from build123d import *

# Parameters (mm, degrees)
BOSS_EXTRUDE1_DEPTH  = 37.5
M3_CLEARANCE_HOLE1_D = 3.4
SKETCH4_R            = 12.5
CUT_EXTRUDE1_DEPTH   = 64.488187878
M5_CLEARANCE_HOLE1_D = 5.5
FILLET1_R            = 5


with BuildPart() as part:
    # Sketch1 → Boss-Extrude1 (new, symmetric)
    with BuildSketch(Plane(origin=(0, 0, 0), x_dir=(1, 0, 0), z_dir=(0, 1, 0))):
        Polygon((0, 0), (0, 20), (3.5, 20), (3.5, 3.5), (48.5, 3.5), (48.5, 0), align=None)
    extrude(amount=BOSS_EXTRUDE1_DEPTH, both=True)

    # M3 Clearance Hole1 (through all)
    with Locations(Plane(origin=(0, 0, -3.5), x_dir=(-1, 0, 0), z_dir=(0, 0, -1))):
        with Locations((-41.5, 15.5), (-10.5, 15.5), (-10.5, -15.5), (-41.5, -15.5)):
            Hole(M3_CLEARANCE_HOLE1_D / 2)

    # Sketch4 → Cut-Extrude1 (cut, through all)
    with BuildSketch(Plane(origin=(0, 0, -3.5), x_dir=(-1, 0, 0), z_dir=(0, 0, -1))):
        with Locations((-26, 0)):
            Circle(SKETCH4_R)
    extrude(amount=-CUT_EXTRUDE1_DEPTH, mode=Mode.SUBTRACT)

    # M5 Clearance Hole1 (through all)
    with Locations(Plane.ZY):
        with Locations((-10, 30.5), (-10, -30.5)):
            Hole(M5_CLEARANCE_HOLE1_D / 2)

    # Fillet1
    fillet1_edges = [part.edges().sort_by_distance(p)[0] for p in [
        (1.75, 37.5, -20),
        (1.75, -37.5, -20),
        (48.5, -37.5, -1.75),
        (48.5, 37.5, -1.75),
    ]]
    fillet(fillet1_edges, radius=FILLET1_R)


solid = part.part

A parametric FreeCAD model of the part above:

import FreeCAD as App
import Part
import Sketcher
from FreeCAD import Vector


def edges_at(feature, points):
    """Names of the edges that pass closest to the given points."""
    edges = feature.Shape.Edges
    near = lambda p: min(range(len(edges)), key=lambda i: edges[i].distToShape(Part.Vertex(*p))[0])
    return sorted({f"Edge{near(p) + 1}" for p in points})

doc = App.newDocument("Part")
body = doc.addObject("PartDesign::Body", "Body")

sketch1 = body.newObject("Sketcher::SketchObject", "Sketch")
sketch1.AttachmentSupport = (doc.getObject("XZ_Plane"), [""])
sketch1.MapMode = "FlatFace"
sketch1.addGeometry([
    Part.LineSegment(Vector(0, -20, 0), Vector(0, 0, 0)),
    Part.LineSegment(Vector(0, 0, 0), Vector(48.5, 0, 0)),
    Part.LineSegment(Vector(48.5, 0, 0), Vector(48.5, -3.5, 0)),
    Part.LineSegment(Vector(48.5, -3.5, 0), Vector(3.5, -3.5, 0)),
    Part.LineSegment(Vector(3.5, -3.5, 0), Vector(3.5, -20, 0)),
    Part.LineSegment(Vector(3.5, -20, 0), Vector(0, -20, 0)),
], False)
sketch1.addConstraint([
    Sketcher.Constraint("Coincident", 0, 2, 1, 1),
    Sketcher.Constraint("Coincident", 1, 2, 2, 1),
    Sketcher.Constraint("Coincident", 2, 2, 3, 1),
    Sketcher.Constraint("Coincident", 3, 2, 4, 1),
    Sketcher.Constraint("Coincident", 4, 2, 5, 1),
    Sketcher.Constraint("Coincident", 5, 2, 0, 1),
    Sketcher.Constraint("Vertical", 0),
    Sketcher.Constraint("Horizontal", 1),
    Sketcher.Constraint("Vertical", 2),
    Sketcher.Constraint("Horizontal", 3),
    Sketcher.Constraint("Vertical", 4),
    Sketcher.Constraint("Horizontal", 5),
    Sketcher.Constraint("Coincident", 0, 2, -1, 1),
    Sketcher.Constraint("Equal", 5, 2),
    Sketcher.Constraint("DistanceX", 3, 2, 3, 1, 45.0),
    Sketcher.Constraint("DistanceY", 0, 1, 0, 2, 20.0),
    Sketcher.Constraint("DistanceX", 1, 1, 1, 2, 48.5),
])
pad1 = body.newObject("PartDesign::Pad", "Pad")
pad1.Profile = sketch1
pad1.Length = 75
pad1.Midplane = True

sketch2 = body.newObject("Sketcher::SketchObject", "Sketch001")
sketch2.AttachmentSupport = (doc.getObject("XY_Plane"), [""])
sketch2.MapMode = "FlatFace"
sketch2.AttachmentOffset = App.Placement(Vector(0, 0, -3.5), App.Rotation())
sketch2.addGeometry([
    Part.Circle(Vector(41.5, 15.5, 0), Vector(0, 0, 1), 1.7),
    Part.Circle(Vector(10.5, 15.5, 0), Vector(0, 0, 1), 1.7),
    Part.Circle(Vector(10.5, -15.5, 0), Vector(0, 0, 1), 1.7),
    Part.Circle(Vector(41.5, -15.5, 0), Vector(0, 0, 1), 1.7),
], False)
sketch2.addConstraint([
    Sketcher.Constraint("Equal", 0, 1),
    Sketcher.Constraint("Equal", 1, 2),
    Sketcher.Constraint("Equal", 2, 3),
    Sketcher.Constraint("Symmetric", 1, 3, 2, 3, -1),
    Sketcher.Constraint("Symmetric", 0, 3, 3, 3, -1),
    Sketcher.Constraint("Horizontal", 0, 3, 1, 3),
    Sketcher.Constraint("Diameter", 0, 3.4),
    Sketcher.Constraint("DistanceX", 1, 3, 0, 3, 31.0),
    Sketcher.Constraint("DistanceY", 2, 3, 1, 3, 31.0),
    Sketcher.Constraint("DistanceX", -1, 1, 0, 3, 41.5),
])
doc.recompute()
hole = body.newObject("PartDesign::Hole", "Hole")
hole.Profile = sketch2
hole.ThreadType = "None"
hole.Diameter = 3.4
hole.DepthType = "ThroughAll"
hole.Reversed = True

sketch3 = body.newObject("Sketcher::SketchObject", "Sketch002")
sketch3.AttachmentSupport = (doc.getObject("XY_Plane"), [""])
sketch3.MapMode = "FlatFace"
sketch3.AttachmentOffset = App.Placement(Vector(0, 0, -3.5), App.Rotation())
sketch3.addGeometry(Part.Circle(Vector(26, 0, 0), Vector(0, 0, 1), 12.5), False)
sketch3.addConstraint([
    Sketcher.Constraint("PointOnObject", 0, 3, -1),
    Sketcher.Constraint("Diameter", 0, 25.0),
    Sketcher.Constraint("DistanceX", -1, 1, 0, 3, 26.0),
])
pocket1 = body.newObject("PartDesign::Pocket", "Pocket")
pocket1.Profile = sketch3
pocket1.Type = "ThroughAll"
pocket1.Reversed = True

sketch4 = body.newObject("Sketcher::SketchObject", "Sketch003")
sketch4.AttachmentSupport = (doc.getObject("YZ_Plane"), [""])
sketch4.MapMode = "FlatFace"
sketch4.addGeometry([
    Part.Circle(Vector(30.5, -10, 0), Vector(0, 0, 1), 2.75),
    Part.Circle(Vector(-30.5, -10, 0), Vector(0, 0, 1), 2.75),
], False)
sketch4.addConstraint([
    Sketcher.Constraint("Equal", 0, 1),
    Sketcher.Constraint("Symmetric", 0, 3, 1, 3, -2),
    Sketcher.Constraint("Diameter", 0, 5.5),
    Sketcher.Constraint("DistanceY", 0, 3, -1, 1, 10.0),
    Sketcher.Constraint("DistanceX", 1, 3, 0, 3, 61.0),
])
doc.recompute()
hole2 = body.newObject("PartDesign::Hole", "Hole001")
hole2.Profile = sketch4
hole2.ThreadType = "None"
hole2.Diameter = 5.5
hole2.DepthType = "ThroughAll"
hole2.Reversed = True
doc.recompute()

fillet = body.newObject("PartDesign::Fillet", "Fillet")
fillet.Base = (hole2, edges_at(hole2, [
    (1.75, 37.5, -20),
    (1.75, -37.5, -20),
    (48.5, -37.5, -1.75),
    (48.5, 37.5, -1.75),
]))
fillet.Radius = 5

doc.recompute()
